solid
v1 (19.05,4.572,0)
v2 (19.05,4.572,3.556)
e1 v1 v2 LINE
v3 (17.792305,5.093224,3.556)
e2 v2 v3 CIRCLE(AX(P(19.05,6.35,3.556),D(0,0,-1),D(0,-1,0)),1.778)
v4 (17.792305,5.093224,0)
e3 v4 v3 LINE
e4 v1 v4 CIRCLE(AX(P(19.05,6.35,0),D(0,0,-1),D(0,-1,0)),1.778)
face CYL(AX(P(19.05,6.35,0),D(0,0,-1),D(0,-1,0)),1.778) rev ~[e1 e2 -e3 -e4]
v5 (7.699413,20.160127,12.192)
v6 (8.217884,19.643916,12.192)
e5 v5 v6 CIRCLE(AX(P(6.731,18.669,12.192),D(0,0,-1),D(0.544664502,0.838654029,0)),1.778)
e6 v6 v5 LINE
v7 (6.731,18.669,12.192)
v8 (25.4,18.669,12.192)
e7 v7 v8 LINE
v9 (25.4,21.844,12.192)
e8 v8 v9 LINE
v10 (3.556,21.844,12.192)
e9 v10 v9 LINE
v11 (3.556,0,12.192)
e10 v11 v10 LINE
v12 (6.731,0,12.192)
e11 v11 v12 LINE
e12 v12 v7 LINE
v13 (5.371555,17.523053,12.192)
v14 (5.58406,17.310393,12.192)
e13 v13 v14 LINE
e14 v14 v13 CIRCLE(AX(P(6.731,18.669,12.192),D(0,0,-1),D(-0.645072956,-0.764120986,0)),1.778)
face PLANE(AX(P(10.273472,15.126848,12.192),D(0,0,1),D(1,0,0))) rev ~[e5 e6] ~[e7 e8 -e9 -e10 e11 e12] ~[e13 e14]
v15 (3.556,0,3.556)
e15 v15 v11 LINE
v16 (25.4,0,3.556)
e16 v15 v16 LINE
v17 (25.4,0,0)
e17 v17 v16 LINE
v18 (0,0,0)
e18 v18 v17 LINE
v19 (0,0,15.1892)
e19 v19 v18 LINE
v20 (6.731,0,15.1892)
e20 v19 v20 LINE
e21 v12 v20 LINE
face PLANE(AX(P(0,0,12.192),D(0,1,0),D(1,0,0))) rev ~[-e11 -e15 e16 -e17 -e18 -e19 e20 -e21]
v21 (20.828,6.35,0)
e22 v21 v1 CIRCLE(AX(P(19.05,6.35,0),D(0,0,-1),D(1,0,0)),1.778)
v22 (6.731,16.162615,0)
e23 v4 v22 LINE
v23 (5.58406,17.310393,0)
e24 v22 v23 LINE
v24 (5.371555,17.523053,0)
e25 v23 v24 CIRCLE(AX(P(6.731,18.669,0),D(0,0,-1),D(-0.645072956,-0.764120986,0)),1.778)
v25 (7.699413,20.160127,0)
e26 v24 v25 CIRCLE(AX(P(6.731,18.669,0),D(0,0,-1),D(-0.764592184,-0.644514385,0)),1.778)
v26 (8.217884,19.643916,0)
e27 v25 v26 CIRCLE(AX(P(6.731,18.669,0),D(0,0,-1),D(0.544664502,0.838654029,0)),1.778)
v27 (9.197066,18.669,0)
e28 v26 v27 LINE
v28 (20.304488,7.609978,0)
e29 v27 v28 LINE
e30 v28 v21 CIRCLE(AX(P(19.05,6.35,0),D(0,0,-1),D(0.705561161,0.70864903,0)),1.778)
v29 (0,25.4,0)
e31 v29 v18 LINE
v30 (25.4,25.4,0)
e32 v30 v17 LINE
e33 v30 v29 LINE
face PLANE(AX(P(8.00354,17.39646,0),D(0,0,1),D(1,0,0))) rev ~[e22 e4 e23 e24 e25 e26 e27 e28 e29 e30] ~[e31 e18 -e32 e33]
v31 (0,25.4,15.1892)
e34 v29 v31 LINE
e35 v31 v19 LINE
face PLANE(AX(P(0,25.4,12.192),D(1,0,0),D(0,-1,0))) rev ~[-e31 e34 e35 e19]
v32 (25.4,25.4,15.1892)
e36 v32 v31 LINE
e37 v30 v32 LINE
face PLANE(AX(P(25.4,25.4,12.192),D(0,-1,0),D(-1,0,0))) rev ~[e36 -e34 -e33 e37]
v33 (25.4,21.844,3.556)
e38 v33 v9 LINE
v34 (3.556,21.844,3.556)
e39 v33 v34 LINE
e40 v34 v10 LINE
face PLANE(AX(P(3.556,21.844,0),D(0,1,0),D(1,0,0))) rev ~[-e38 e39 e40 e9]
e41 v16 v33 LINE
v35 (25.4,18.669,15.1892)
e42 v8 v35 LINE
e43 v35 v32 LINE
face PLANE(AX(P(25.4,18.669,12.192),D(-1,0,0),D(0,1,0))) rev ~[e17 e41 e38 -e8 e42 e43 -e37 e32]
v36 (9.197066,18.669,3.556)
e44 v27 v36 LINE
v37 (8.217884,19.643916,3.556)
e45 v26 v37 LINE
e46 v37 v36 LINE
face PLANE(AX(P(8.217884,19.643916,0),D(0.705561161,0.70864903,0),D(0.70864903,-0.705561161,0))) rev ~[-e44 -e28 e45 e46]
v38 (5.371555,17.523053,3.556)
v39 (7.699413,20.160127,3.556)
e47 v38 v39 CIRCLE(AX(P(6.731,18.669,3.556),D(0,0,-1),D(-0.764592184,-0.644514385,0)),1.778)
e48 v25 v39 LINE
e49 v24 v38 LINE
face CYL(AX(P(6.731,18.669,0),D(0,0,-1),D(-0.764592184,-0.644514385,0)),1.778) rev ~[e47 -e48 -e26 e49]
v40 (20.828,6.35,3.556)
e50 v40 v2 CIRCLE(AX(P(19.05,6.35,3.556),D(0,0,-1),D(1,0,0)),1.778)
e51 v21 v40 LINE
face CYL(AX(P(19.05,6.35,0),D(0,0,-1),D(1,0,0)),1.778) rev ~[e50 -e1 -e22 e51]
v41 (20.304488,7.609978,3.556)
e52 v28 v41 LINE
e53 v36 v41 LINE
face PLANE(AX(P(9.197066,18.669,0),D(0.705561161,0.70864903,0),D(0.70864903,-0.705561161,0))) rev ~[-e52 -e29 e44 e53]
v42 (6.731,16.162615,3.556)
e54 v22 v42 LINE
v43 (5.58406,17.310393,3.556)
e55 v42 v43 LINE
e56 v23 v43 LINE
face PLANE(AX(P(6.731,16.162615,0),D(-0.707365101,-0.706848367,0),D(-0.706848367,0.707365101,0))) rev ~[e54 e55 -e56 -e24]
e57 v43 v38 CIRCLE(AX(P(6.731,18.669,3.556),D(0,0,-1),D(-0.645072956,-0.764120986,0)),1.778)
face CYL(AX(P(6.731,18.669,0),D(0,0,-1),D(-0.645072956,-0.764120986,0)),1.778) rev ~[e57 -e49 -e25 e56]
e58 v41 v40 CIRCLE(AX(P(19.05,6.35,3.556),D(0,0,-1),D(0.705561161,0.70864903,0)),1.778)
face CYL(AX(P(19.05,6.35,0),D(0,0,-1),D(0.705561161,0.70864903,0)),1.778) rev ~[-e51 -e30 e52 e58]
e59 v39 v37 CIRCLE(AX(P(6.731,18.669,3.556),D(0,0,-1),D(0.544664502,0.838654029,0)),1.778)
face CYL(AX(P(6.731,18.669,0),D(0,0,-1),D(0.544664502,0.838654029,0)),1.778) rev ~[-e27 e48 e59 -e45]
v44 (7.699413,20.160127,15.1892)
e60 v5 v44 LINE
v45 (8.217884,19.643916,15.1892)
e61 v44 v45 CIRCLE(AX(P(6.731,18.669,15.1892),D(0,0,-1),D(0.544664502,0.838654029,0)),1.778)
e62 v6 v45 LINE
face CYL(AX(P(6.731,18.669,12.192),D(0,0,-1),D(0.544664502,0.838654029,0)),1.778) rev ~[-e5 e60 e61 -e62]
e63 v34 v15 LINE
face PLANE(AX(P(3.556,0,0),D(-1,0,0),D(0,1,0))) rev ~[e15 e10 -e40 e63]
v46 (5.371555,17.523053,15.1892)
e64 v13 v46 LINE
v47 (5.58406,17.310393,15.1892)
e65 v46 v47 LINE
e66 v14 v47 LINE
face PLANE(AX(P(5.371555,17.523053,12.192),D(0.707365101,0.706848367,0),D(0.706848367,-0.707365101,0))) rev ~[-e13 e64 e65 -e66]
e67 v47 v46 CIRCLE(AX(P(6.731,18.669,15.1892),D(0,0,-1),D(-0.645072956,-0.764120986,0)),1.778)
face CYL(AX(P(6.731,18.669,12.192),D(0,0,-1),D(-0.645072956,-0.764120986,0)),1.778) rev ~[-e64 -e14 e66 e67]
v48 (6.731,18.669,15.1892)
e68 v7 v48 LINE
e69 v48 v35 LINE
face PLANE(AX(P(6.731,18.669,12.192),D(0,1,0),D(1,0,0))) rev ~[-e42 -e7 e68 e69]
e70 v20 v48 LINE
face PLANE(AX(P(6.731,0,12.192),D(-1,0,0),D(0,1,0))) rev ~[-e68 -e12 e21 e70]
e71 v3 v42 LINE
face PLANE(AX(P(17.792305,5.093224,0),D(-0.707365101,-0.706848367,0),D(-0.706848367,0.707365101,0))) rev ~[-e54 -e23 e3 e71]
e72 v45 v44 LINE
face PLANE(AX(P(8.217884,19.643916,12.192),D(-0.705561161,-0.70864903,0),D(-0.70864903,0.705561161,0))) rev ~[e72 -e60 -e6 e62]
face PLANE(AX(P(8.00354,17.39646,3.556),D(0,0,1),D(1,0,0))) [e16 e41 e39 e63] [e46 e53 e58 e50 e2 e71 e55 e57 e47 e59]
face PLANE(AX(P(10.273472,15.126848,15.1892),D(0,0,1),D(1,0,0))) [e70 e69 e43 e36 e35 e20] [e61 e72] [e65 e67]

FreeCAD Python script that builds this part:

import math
import FreeCAD as App
import Part
import Sketcher

V = App.Vector
Q = App.Units.Quantity

doc = App.newDocument("Part")
body = doc.addObject("PartDesign::Body", "Body")

# Sketch on XY plane
sketch1 = body.newObject("Sketcher::SketchObject", "Sketch")
sketch1.AttachmentSupport = (doc.getObject("XY_Plane"), [""])
sketch1.MapMode = "FlatFace"
sketch1.addGeometry(Part.LineSegment(V(0, 25.4, 0), V(0, 0, 0)), False)
sketch1.addGeometry(Part.LineSegment(V(0, 0, 0), V(25.4, 0, 0)), False)
sketch1.addGeometry(Part.LineSegment(V(25.4, 0, 0), V(25.4, 25.4, 0)), False)
sketch1.addGeometry(Part.LineSegment(V(25.4, 25.4, 0), V(0, 25.4, 0)), False)
sketch1.addGeometry(Part.ArcOfCircle(Part.Circle(V(19.05, 6.35, 0), V(0, 0, 1), 1.78), math.radians(-135), math.radians(-90)), False)
sketch1.addGeometry(Part.LineSegment(V(17.79, 5.09, 0), V(6.73, 16.16, 0)), False)
sketch1.addGeometry(Part.LineSegment(V(6.73, 16.16, 0), V(5.58, 17.31, 0)), False)
sketch1.addGeometry(Part.ArcOfCircle(Part.Circle(V(6.73, 18.67, 0), V(0, 0, 1), 1.78), math.radians(-139.87), math.radians(-130.17)), False)
sketch1.addGeometry(Part.ArcOfCircle(Part.Circle(V(6.73, 18.67, 0), V(0, 0, 1), 1.78), math.radians(57), math.radians(220)), False)
sketch1.addGeometry(Part.ArcOfCircle(Part.Circle(V(6.73, 18.67, 0), V(0, 0, 1), 1.78), math.radians(33), math.radians(57)), False)
sketch1.addGeometry(Part.LineSegment(V(8.22, 19.64, 0), V(9.2, 18.67, 0)), False)
sketch1.addGeometry(Part.LineSegment(V(9.2, 18.67, 0), V(20.3, 7.61, 0)), False)
sketch1.addGeometry(Part.ArcOfCircle(Part.Circle(V(19.05, 6.35, 0), V(0, 0, 1), 1.78), math.radians(0), math.radians(45)), False)
sketch1.addGeometry(Part.ArcOfCircle(Part.Circle(V(19.05, 6.35, 0), V(0, 0, 1), 1.78), math.radians(-90), math.radians(0)), False)
sketch1.addConstraint(Sketcher.Constraint("Coincident", 0, 2, 1, 1))
sketch1.addConstraint(Sketcher.Constraint("Coincident", 1, 2, 2, 1))
sketch1.addConstraint(Sketcher.Constraint("Coincident", 2, 2, 3, 1))
sketch1.addConstraint(Sketcher.Constraint("Coincident", 3, 2, 0, 1))
sketch1.addConstraint(Sketcher.Constraint("Tangent", 4, 1, 5, 1))
sketch1.addConstraint(Sketcher.Constraint("Coincident", 5, 2, 6, 1))
sketch1.addConstraint(Sketcher.Constraint("Coincident", 6, 2, 7, 2))
sketch1.addConstraint(Sketcher.Constraint("Tangent", 7, 1, 8, 2))
sketch1.addConstraint(Sketcher.Constraint("Tangent", 8, 1, 9, 2))
sketch1.addConstraint(Sketcher.Constraint("Coincident", 9, 1, 10, 1))
sketch1.addConstraint(Sketcher.Constraint("Coincident", 10, 2, 11, 1))
sketch1.addConstraint(Sketcher.Constraint("Tangent", 11, 2, 12, 2))
sketch1.addConstraint(Sketcher.Constraint("Tangent", 12, 1, 13, 2))
sketch1.addConstraint(Sketcher.Constraint("Tangent", 13, 1, 4, 2))
sketch1.addConstraint(Sketcher.Constraint("Vertical", 0))
sketch1.addConstraint(Sketcher.Constraint("Horizontal", 1))
sketch1.addConstraint(Sketcher.Constraint("Vertical", 2))
sketch1.addConstraint(Sketcher.Constraint("Horizontal", 3))
sketch1.addConstraint(Sketcher.Constraint("Coincident", 0, 2, -1, 1))
sketch1.addConstraint(Sketcher.Constraint("Coincident", 9, 3, 7, 3))
sketch1.addConstraint(Sketcher.Constraint("Coincident", 12, 3, 4, 3))
sketch1.addConstraint(Sketcher.Constraint("Equal", 4, 7))
sketch1.addConstraint(Sketcher.Constraint("Parallel", 5, 6))
sketch1.addConstraint(Sketcher.Constraint("Parallel", 10, 11))
sketch1.addConstraint(Sketcher.Constraint("Horizontal", 9, 3, 10, 2))
sketch1.addConstraint(Sketcher.Constraint("Horizontal", 13, 3, 12, 1))
sketch1.addConstraint(Sketcher.Constraint("Vertical", 9, 3, 5, 2))
sketch1.addConstraint(Sketcher.Constraint("Vertical", 12, 3, 13, 1))
sketch1.addConstraint(Sketcher.Constraint("Equal", 3, 0))
sketch1.addConstraint(Sketcher.Constraint("DistanceX", 1, 1, 1, 2, Q("1 in")))
sketch1.addConstraint(Sketcher.Constraint("Radius", 4, Q("0.07 in")))
sketch1.addConstraint(Sketcher.Constraint("DistanceX", -1, 1, 4, 3, Q("0.75 in")))
sketch1.addConstraint(Sketcher.Constraint("DistanceY", -1, 1, 4, 3, Q("0.25 in")))
sketch1.addConstraint(Sketcher.Constraint("DistanceX", -1, 1, 7, 3, Q("0.265 in")))
sketch1.addConstraint(Sketcher.Constraint("DistanceY", -1, 1, 7, 3, Q("0.735 in")))
sketch1.addConstraint(Sketcher.Constraint("Distance", 10, Q("0.0544 in")))
sketch1.addConstraint(Sketcher.Constraint("Distance", 6, 1.622611))
sketch1.addConstraint(Sketcher.Constraint("DistanceY", 6, 2, 7, 1, 0.212661))
sketch1.addConstraint(Sketcher.Constraint("DistanceX", 7, 1, 8, 1, 2.327858))
pad1 = body.newObject("PartDesign::Pad", "Pad")
pad1.Profile = sketch1
pad1.Length = Q("0.14 in")

# Sketch on XY plane
sketch2 = body.newObject("Sketcher::SketchObject", "Sketch001")
sketch2.AttachmentSupport = (doc.getObject("XY_Plane"), [""])
sketch2.MapMode = "FlatFace"
sketch2.addGeometry(Part.LineSegment(V(0, 25.4, 0), V(0, 0, 0)), False)
sketch2.addGeometry(Part.LineSegment(V(0, 0, 0), V(3.6, 0, 0)), False)
sketch2.addGeometry(Part.LineSegment(V(3.6, 0, 0), V(3.6, 21.8, 0)), False)
sketch2.addGeometry(Part.LineSegment(V(3.6, 21.8, 0), V(25.4, 21.8, 0)), False)
sketch2.addGeometry(Part.LineSegment(V(25.4, 21.8, 0), V(25.4, 25.4, 0)), False)
sketch2.addGeometry(Part.LineSegment(V(25.4, 25.4, 0), V(0, 25.4, 0)), False)
sketch2.addConstraint(Sketcher.Constraint("Coincident", 0, 2, 1, 1))
sketch2.addConstraint(Sketcher.Constraint("Coincident", 1, 2, 2, 1))
sketch2.addConstraint(Sketcher.Constraint("Coincident", 2, 2, 3, 1))
sketch2.addConstraint(Sketcher.Constraint("Coincident", 3, 2, 4, 1))
sketch2.addConstraint(Sketcher.Constraint("Coincident", 4, 2, 5, 1))
sketch2.addConstraint(Sketcher.Constraint("Coincident", 5, 2, 0, 1))
sketch2.addConstraint(Sketcher.Constraint("Vertical", 0))
sketch2.addConstraint(Sketcher.Constraint("Horizontal", 1))
sketch2.addConstraint(Sketcher.Constraint("Vertical", 2))
sketch2.addConstraint(Sketcher.Constraint("Horizontal", 3))
sketch2.addConstraint(Sketcher.Constraint("Vertical", 4))
sketch2.addConstraint(Sketcher.Constraint("Horizontal", 5))
sketch2.addConstraint(Sketcher.Constraint("Coincident", 0, 2, -1, 1))
sketch2.addConstraint(Sketcher.Constraint("Equal", 5, 0))
sketch2.addConstraint(Sketcher.Constraint("Equal", 3, 2))
sketch2.addConstraint(Sketcher.Constraint("DistanceX", 5, 2, 5, 1, Q("1 in")))
sketch2.addConstraint(Sketcher.Constraint("DistanceX", 1, 1, 1, 2, Q("0.14 in")))
pad2 = body.newObject("PartDesign::Pad", "Pad001")
pad2.Profile = sketch2
pad2.Length = Q("0.48 in")

# Sketch on XY plane
sketch3 = body.newObject("Sketcher::SketchObject", "Sketch002")
sketch3.AttachmentSupport = (doc.getObject("XY_Plane"), [""])
sketch3.MapMode = "FlatFace"
sketch3.AttachmentOffset = App.Placement(V(0, 0, 0.48 * 25.4), App.Rotation())
sketch3.addGeometry(Part.LineSegment(V(6.73, 18.67, 0), V(25.4, 18.67, 0)), False)
sketch3.addGeometry(Part.LineSegment(V(25.4, 18.67, 0), V(25.4, 25.4, 0)), False)
sketch3.addGeometry(Part.LineSegment(V(25.4, 25.4, 0), V(0, 25.4, 0)), False)
sketch3.addGeometry(Part.LineSegment(V(0, 25.4, 0), V(0, 0, 0)), False)
sketch3.addGeometry(Part.LineSegment(V(0, 0, 0), V(6.73, 0, 0)), False)
sketch3.addGeometry(Part.LineSegment(V(6.73, 0, 0), V(6.73, 18.67, 0)), False)
sketch3.addGeometry(Part.LineSegment(V(5.37, 17.52, 0), V(5.58, 17.31, 0)), False)
sketch3.addGeometry(Part.ArcOfCircle(Part.Circle(V(6.73, 18.67, 0), V(0, 0, 1), 1.78), math.radians(-139.87), math.radians(-130.17)), False)
sketch3.addGeometry(Part.ArcOfCircle(Part.Circle(V(6.73, 18.67, 0), V(0, 0, 1), 1.78), math.radians(33), math.radians(57)), False)
sketch3.addGeometry(Part.LineSegment(V(8.22, 19.64, 0), V(7.7, 20.16, 0)), False)
sketch3.addConstraint(Sketcher.Constraint("Coincident", 0, 2, 1, 1))
sketch3.addConstraint(Sketcher.Constraint("Coincident", 1, 2, 2, 1))
sketch3.addConstraint(Sketcher.Constraint("Coincident", 2, 2, 3, 1))
sketch3.addConstraint(Sketcher.Constraint("Coincident", 3, 2, 4, 1))
sketch3.addConstraint(Sketcher.Constraint("Coincident", 4, 2, 5, 1))
sketch3.addConstraint(Sketcher.Constraint("Coincident", 5, 2, 0, 1))
sketch3.addConstraint(Sketcher.Constraint("Coincident", 6, 1, 7, 1))
sketch3.addConstraint(Sketcher.Constraint("Coincident", 7, 2, 6, 2))
sketch3.addConstraint(Sketcher.Constraint("Coincident", 8, 1, 9, 1))
sketch3.addConstraint(Sketcher.Constraint("Coincident", 9, 2, 8, 2))
sketch3.addConstraint(Sketcher.Constraint("Horizontal", 0))
sketch3.addConstraint(Sketcher.Constraint("Vertical", 1))
sketch3.addConstraint(Sketcher.Constraint("Horizontal", 2))
sketch3.addConstraint(Sketcher.Constraint("Vertical", 3))
sketch3.addConstraint(Sketcher.Constraint("Horizontal", 4))
sketch3.addConstraint(Sketcher.Constraint("Vertical", 5))
sketch3.addConstraint(Sketcher.Constraint("Coincident", 3, 2, -1, 1))
sketch3.addConstraint(Sketcher.Constraint("Coincident", 8, 3, 7, 3))
sketch3.addConstraint(Sketcher.Constraint("Coincident", 5, 2, 7, 3))
sketch3.addConstraint(Sketcher.Constraint("Equal", 7, 8))
sketch3.addConstraint(Sketcher.Constraint("Equal", 4, 1))
sketch3.addConstraint(Sketcher.Constraint("Equal", 2, 3))
sketch3.addConstraint(Sketcher.Constraint("DistanceX", 2, 2, 2, 1, Q("1 in")))
sketch3.addConstraint(Sketcher.Constraint("Radius", 7, Q("0.07 in")))
sketch3.addConstraint(Sketcher.Constraint("DistanceX", 0, 1, 0, 2, Q("0.735 in")))
sketch3.addConstraint(Sketcher.Constraint("Distance", 9, 0.731632))
sketch3.addConstraint(Sketcher.Constraint("DistanceX", -1, 1, 7, 2, 5.58406))
sketch3.addConstraint(Sketcher.Constraint("DistanceY", 7, 2, 6, 1, 0.212661))
sketch3.addConstraint(Sketcher.Constraint("DistanceX", 6, 1, 8, 1, 2.846329))
pad3 = body.newObject("PartDesign::Pad", "Pad002")
pad3.Profile = sketch3
pad3.Length = Q("0.118 in")

doc.recompute()
